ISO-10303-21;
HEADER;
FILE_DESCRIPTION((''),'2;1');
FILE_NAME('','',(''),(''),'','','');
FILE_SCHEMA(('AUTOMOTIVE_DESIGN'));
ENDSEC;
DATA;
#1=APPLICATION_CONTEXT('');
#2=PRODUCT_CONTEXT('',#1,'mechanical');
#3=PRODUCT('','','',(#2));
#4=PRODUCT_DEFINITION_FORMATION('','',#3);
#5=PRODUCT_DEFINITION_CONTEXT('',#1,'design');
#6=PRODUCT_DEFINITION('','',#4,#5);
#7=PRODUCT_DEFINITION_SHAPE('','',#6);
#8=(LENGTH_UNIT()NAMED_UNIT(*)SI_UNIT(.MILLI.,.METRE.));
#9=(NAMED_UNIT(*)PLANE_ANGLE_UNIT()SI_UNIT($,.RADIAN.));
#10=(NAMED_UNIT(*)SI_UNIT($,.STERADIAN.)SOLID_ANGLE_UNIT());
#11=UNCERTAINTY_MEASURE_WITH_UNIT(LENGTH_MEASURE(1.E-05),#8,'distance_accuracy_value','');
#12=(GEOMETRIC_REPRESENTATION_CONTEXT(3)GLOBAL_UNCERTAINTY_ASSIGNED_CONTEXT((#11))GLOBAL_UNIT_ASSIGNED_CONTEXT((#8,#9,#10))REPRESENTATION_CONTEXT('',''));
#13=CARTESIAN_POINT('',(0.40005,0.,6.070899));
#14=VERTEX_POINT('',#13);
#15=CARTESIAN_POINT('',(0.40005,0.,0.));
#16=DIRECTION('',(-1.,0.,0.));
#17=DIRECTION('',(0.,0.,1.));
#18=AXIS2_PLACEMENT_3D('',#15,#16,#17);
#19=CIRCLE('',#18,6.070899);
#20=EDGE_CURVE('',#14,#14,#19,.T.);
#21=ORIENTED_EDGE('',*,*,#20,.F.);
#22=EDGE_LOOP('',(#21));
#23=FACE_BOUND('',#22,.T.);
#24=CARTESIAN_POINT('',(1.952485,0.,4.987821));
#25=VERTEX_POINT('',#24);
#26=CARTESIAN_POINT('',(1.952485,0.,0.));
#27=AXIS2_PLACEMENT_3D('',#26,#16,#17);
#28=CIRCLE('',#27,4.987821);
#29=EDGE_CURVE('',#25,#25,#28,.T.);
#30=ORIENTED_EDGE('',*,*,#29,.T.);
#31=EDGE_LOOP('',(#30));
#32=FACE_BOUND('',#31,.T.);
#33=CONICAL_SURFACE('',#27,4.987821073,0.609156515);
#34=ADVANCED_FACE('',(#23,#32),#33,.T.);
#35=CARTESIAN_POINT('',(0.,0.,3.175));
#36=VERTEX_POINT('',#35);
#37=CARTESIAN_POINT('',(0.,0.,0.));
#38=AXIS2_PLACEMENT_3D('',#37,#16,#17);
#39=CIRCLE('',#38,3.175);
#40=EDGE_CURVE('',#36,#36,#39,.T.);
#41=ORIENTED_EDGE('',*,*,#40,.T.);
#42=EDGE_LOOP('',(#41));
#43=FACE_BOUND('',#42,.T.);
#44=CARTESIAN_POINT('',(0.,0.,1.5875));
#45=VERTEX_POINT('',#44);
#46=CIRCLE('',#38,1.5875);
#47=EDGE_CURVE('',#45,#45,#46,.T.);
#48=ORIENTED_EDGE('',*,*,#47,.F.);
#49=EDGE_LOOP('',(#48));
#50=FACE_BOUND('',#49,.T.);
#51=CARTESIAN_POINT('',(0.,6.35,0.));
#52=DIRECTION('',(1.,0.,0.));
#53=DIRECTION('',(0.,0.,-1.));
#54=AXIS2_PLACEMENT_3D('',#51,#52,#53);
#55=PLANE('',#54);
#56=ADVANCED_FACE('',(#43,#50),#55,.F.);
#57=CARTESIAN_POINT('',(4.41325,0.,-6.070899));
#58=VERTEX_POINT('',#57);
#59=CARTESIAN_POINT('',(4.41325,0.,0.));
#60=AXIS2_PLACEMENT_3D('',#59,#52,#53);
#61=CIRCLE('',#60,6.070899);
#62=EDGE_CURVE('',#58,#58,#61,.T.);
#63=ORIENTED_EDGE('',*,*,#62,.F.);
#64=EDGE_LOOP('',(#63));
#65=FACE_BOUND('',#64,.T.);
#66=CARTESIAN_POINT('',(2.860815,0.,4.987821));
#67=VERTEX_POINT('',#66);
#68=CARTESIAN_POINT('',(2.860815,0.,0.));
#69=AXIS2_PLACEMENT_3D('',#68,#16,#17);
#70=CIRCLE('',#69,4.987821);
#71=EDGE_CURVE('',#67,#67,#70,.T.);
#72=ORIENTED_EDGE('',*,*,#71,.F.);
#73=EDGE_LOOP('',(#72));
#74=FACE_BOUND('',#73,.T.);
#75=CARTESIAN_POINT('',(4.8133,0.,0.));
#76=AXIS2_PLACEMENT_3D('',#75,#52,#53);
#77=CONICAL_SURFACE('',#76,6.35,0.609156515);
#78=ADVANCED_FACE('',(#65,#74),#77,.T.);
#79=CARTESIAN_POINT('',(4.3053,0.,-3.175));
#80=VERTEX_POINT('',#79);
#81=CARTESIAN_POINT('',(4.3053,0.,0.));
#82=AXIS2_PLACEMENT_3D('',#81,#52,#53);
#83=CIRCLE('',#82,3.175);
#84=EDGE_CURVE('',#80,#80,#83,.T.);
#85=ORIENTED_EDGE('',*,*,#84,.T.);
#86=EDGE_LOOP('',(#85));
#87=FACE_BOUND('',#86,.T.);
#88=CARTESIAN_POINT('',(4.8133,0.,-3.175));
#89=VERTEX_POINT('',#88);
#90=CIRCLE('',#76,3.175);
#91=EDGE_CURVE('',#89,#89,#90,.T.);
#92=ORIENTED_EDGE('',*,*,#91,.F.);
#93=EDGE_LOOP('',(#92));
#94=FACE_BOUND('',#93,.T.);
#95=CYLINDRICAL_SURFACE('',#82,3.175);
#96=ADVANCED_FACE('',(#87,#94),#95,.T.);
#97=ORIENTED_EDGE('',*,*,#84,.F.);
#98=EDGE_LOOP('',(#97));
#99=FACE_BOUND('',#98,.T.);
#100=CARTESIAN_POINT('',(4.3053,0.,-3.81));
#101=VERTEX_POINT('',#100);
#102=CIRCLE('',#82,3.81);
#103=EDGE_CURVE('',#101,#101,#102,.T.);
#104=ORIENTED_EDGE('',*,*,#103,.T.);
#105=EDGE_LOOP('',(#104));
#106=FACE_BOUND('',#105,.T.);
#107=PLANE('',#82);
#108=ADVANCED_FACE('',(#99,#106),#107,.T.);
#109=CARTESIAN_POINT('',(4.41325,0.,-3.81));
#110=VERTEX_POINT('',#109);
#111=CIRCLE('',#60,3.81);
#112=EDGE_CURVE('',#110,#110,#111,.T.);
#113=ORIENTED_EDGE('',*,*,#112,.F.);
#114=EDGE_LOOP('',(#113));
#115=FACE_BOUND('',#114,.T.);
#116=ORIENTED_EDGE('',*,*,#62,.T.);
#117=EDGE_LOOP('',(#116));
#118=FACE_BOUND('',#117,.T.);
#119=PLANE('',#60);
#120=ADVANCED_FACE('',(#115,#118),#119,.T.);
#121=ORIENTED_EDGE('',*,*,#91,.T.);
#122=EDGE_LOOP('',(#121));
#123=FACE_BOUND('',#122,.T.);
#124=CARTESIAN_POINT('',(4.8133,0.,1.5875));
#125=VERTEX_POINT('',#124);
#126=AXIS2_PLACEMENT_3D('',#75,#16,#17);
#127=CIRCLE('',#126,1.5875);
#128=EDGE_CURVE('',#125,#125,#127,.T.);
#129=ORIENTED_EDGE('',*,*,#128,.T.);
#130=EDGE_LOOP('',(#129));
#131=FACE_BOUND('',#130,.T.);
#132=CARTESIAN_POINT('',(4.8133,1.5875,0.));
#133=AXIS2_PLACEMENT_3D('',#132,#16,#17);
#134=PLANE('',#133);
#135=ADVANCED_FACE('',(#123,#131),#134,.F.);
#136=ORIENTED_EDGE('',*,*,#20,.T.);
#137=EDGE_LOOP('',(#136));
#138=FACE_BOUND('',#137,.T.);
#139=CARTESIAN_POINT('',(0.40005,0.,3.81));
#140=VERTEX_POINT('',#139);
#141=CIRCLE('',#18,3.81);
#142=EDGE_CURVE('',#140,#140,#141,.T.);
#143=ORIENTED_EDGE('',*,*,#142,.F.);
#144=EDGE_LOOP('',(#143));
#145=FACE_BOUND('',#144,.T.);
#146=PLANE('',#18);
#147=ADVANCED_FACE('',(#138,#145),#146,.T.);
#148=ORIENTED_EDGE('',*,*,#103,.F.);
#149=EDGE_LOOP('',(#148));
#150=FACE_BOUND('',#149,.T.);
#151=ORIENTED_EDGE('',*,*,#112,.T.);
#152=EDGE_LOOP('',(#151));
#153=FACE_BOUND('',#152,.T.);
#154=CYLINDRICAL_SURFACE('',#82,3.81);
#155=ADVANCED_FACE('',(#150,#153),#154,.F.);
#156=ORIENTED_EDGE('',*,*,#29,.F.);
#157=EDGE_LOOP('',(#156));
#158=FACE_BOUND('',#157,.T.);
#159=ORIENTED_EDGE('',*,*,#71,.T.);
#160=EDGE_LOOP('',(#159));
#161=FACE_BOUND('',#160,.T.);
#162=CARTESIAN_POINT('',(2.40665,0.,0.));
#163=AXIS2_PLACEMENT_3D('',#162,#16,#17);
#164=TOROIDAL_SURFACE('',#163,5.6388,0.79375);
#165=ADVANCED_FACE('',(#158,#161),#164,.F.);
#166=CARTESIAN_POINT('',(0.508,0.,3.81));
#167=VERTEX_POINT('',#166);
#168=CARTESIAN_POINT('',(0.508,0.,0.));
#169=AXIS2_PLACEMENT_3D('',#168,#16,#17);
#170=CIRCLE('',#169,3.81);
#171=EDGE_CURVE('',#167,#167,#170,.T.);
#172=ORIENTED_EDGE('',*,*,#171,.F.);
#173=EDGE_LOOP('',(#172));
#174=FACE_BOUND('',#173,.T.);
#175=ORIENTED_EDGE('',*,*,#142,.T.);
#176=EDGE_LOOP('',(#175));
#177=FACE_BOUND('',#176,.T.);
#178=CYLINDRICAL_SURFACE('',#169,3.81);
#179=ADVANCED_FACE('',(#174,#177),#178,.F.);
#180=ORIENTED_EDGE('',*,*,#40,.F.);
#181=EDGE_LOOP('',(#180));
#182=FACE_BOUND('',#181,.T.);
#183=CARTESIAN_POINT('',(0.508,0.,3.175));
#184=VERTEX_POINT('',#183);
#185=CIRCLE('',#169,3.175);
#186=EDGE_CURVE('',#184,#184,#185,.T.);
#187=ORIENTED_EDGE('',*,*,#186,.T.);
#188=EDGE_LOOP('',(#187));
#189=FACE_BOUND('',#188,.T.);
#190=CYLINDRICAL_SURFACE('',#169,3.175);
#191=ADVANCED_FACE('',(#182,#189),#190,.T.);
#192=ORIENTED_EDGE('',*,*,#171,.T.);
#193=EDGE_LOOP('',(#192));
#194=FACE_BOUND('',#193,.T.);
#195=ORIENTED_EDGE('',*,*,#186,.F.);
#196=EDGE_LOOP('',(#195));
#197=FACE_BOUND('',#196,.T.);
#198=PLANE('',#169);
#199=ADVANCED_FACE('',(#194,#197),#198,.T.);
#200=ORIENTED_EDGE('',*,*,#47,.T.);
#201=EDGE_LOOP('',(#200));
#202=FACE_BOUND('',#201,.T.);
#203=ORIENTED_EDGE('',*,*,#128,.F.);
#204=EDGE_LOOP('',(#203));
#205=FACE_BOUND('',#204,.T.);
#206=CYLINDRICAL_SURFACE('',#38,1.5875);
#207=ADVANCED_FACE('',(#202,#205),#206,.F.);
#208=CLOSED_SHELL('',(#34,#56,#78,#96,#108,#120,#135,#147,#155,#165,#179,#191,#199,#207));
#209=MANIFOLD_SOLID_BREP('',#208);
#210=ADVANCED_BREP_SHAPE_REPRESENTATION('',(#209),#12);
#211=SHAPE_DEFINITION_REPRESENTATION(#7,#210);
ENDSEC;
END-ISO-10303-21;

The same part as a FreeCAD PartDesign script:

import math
import FreeCAD as App
import Part
import Sketcher
Q = App.Units.Quantity

doc = App.newDocument("Part")
body = doc.addObject("PartDesign::Body", "Body")

# Sketch on XY plane
sketch1 = body.newObject("Sketcher::SketchObject", "Sketch")
sketch1.AttachmentSupport = (doc.getObject("XY_Plane"), [""])
sketch1.MapMode = "FlatFace"
sketch1.addGeometry([
    Part.LineSegment(App.Vector(0, 1.5875, 0), App.Vector(4.8133, 1.5875, 0)),  # 0
    Part.LineSegment(App.Vector(4.8133, 1.5875, 0), App.Vector(4.8133, 6.35, 0)),  # 1
    Part.LineSegment(App.Vector(4.8133, 6.35, 0), App.Vector(2.860815, 4.987821, 0)),  # 2
    Part.ArcOfCircle(Part.Circle(App.Vector(2.40665, 5.6388, 0), App.Vector(0, 0, 1), 0.79375), math.radians(-124.902097), math.radians(-55.097903)),  # 3
    Part.LineSegment(App.Vector(1.952485, 4.987821, 0), App.Vector(0, 6.35, 0)),  # 4
    Part.LineSegment(App.Vector(0, 6.35, 0), App.Vector(0, 1.5875, 0)),  # 5
], False)
sketch1.addConstraint([
    Sketcher.Constraint("Coincident", 0, 2, 1, 1),
    Sketcher.Constraint("Coincident", 1, 2, 2, 1),
    Sketcher.Constraint("Tangent", 2, 2, 3, 2),
    Sketcher.Constraint("Tangent", 3, 1, 4, 1),
    Sketcher.Constraint("Coincident", 4, 2, 5, 1),
    Sketcher.Constraint("Coincident", 5, 2, 0, 1),
    Sketcher.Constraint("Horizontal", 0),
    Sketcher.Constraint("Vertical", 1),
    Sketcher.Constraint("Vertical", 5),
    Sketcher.Constraint("PointOnObject", 4, 2, -2),
    Sketcher.Constraint("Horizontal", 2, 2, 3, 1),
    Sketcher.Constraint("Horizontal", 1, 2, 4, 2),
    Sketcher.Constraint("Radius", 3, Q("0.03125 in")),
    Sketcher.Constraint("DistanceY", 1, 1, 1, 2, Q("0.1875 in")),
    Sketcher.Constraint("DistanceY", -1, 1, 1, 2, Q("0.25 in")),
    Sketcher.Constraint("DistanceX", 0, 1, 0, 2, Q("0.1895 in")),
    Sketcher.Constraint("DistanceY", -1, 1, 3, 3, Q("0.222 in")),
])
revolution = body.newObject("PartDesign::Revolution", "Revolution")
revolution.Profile = sketch1
revolution.ReferenceAxis = (sketch1, ["H_Axis"])
revolution.Angle = 360

# Sketch on YZ plane
sketch2 = body.newObject("Sketcher::SketchObject", "Sketch001")
sketch2.AttachmentSupport = (doc.getObject("YZ_Plane"), [""])
sketch2.MapMode = "FlatFace"
sketch2.AttachmentOffset = App.Placement(App.Vector(0, 0, 0.1895 * 25.4), App.Rotation())
sketch2.addGeometry([
    Part.Circle(App.Vector(0, 0, 0), App.Vector(0, 0, 1), 3.81),
    Part.Circle(App.Vector(0, 0, 0), App.Vector(0, 0, 1), 3.175),
], False)
sketch2.addConstraint([
    Sketcher.Constraint("Coincident", 0, 3, -1, 1),
    Sketcher.Constraint("Coincident", 1, 3, -1, 1),
    Sketcher.Constraint("Diameter", 0, Q("0.3 in")),
    Sketcher.Constraint("Diameter", 1, Q("0.25 in")),
])
pocket1 = body.newObject("PartDesign::Pocket", "Pocket")
pocket1.Profile = sketch2
pocket1.Length = Q("0.02 in")

# Sketch on YZ plane
sketch3 = body.newObject("Sketcher::SketchObject", "Sketch002")
sketch3.AttachmentSupport = (doc.getObject("YZ_Plane"), [""])
sketch3.MapMode = "FlatFace"
sketch3.AttachmentOffset = App.Placement(App.Vector(0, 0, 0.02 * 25.4), App.Rotation())
sketch3.addGeometry([
    Part.Circle(App.Vector(0, 0, 0), App.Vector(0, 0, 1), 3.81),
    Part.Circle(App.Vector(0, 0, 0), App.Vector(0, 0, 1), 3.175),
], False)
sketch3.addConstraint([
    Sketcher.Constraint("Coincident", 0, 3, -1, 1),
    Sketcher.Constraint("Coincident", 1, 3, -1, 1),
    Sketcher.Constraint("Diameter", 0, Q("0.3 in")),
    Sketcher.Constraint("Diameter", 1, Q("0.25 in")),
])
pocket2 = body.newObject("PartDesign::Pocket", "Pocket001")
pocket2.Profile = sketch3
pocket2.Length = Q("0.02 in")

# Sketch on YZ plane
sketch4 = body.newObject("Sketcher::SketchObject", "Sketch003")
sketch4.AttachmentSupport = (doc.getObject("YZ_Plane"), [""])
sketch4.MapMode = "FlatFace"
sketch4.AttachmentOffset = App.Placement(App.Vector(0, 0, 0.1895 * 25.4), App.Rotation())
sketch4.addGeometry([
    Part.Circle(App.Vector(0, 0, 0), App.Vector(0, 0, 1), 6.35),
    Part.Circle(App.Vector(0, 0, 0), App.Vector(0, 0, 1), 3.81),
], False)
sketch4.addConstraint([
    Sketcher.Constraint("Coincident", 0, 3, -1, 1),
    Sketcher.Constraint("Coincident", 1, 3, -1, 1),
    Sketcher.Constraint("Diameter", 0, Q("0.5 in")),
    Sketcher.Constraint("Diameter", 1, Q("0.3 in")),
])
pocket3 = body.newObject("PartDesign::Pocket", "Pocket002")
pocket3.Profile = sketch4
pocket3.Length = 0.40005

# Sketch on YZ plane
sketch5 = body.newObject("Sketcher::SketchObject", "Sketch004")
sketch5.AttachmentSupport = (doc.getObject("YZ_Plane"), [""])
sketch5.MapMode = "FlatFace"
sketch5.AttachmentOffset = App.Placement(App.Vector(0, 0, 0.40005), App.Rotation())
sketch5.addGeometry([
    Part.Circle(App.Vector(0, 0, 0), App.Vector(0, 0, 1), 6.35),
    Part.Circle(App.Vector(0, 0, 0), App.Vector(0, 0, 1), 3.81),
], False)
sketch5.addConstraint([
    Sketcher.Constraint("Coincident", 0, 3, -1, 1),
    Sketcher.Constraint("Coincident", 1, 3, -1, 1),
    Sketcher.Constraint("Diameter", 0, Q("0.5 in")),
    Sketcher.Constraint("Diameter", 1, Q("0.3 in")),
])
pocket4 = body.newObject("PartDesign::Pocket", "Pocket003")
pocket4.Profile = sketch5
pocket4.Length = 0.40005

doc.recompute()
